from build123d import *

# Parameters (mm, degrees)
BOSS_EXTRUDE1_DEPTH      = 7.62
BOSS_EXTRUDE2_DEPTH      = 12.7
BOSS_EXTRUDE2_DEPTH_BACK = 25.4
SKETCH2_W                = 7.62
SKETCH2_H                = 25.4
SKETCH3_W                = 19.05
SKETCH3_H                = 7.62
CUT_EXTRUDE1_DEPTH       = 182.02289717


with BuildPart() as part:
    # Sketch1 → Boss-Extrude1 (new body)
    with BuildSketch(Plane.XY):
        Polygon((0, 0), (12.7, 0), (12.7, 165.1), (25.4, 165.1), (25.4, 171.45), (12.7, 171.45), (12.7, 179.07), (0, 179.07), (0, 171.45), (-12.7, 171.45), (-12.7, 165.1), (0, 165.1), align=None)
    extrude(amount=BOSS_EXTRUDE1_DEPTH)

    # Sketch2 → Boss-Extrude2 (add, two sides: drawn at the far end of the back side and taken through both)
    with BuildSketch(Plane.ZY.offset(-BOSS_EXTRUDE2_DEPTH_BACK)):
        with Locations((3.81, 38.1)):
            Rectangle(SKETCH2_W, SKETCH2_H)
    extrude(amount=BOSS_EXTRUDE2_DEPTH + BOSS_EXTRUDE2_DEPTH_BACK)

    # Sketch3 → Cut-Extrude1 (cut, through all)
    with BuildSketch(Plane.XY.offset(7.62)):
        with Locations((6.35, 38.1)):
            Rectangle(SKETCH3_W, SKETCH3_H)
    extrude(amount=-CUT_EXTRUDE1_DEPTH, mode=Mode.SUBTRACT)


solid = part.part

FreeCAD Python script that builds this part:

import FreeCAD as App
import Part
import Sketcher
Q = App.Units.Quantity

doc = App.newDocument("Part")
body = doc.addObject("PartDesign::Body", "Body")

# Sketch on XY plane
sketch1 = doc.addObject("Sketcher::SketchObject", "Sketch")
body.addObject(sketch1)
sketch1.AttachmentSupport = (doc.XY_Plane, [""])
sketch1.MapMode = "FlatFace"
sketch1.addGeometry([
    Part.LineSegment(App.Vector(0, 0, 0), App.Vector(13, 0, 0)),  # 0
    Part.LineSegment(App.Vector(13, 0, 0), App.Vector(13, 165, 0)),  # 1
    Part.LineSegment(App.Vector(13, 165, 0), App.Vector(25, 165, 0)),  # 2
    Part.LineSegment(App.Vector(25, 165, 0), App.Vector(25, 171, 0)),  # 3
    Part.LineSegment(App.Vector(25, 171, 0), App.Vector(13, 171, 0)),  # 4
    Part.LineSegment(App.Vector(13, 171, 0), App.Vector(13, 179, 0)),  # 5
    Part.LineSegment(App.Vector(13, 179, 0), App.Vector(0, 179, 0)),  # 6
    Part.LineSegment(App.Vector(0, 179, 0), App.Vector(0, 171, 0)),  # 7
    Part.LineSegment(App.Vector(0, 171, 0), App.Vector(-13, 171, 0)),  # 8
    Part.LineSegment(App.Vector(-13, 171, 0), App.Vector(-13, 165, 0)),  # 9
    Part.LineSegment(App.Vector(-13, 165, 0), App.Vector(0, 165, 0)),  # 10
    Part.LineSegment(App.Vector(0, 165, 0), App.Vector(0, 0, 0)),  # 11
], False)
sketch1.addConstraint([
    Sketcher.Constraint("Coincident", 0, 2, 1, 1),
    Sketcher.Constraint("Coincident", 1, 2, 2, 1),
    Sketcher.Constraint("Coincident", 2, 2, 3, 1),
    Sketcher.Constraint("Coincident", 3, 2, 4, 1),
    Sketcher.Constraint("Coincident", 4, 2, 5, 1),
    Sketcher.Constraint("Coincident", 5, 2, 6, 1),
    Sketcher.Constraint("Coincident", 6, 2, 7, 1),
    Sketcher.Constraint("Coincident", 7, 2, 8, 1),
    Sketcher.Constraint("Coincident", 8, 2, 9, 1),
    Sketcher.Constraint("Coincident", 9, 2, 10, 1),
    Sketcher.Constraint("Coincident", 10, 2, 11, 1),
    Sketcher.Constraint("Coincident", 11, 2, 0, 1),
    Sketcher.Constraint("Horizontal", 0),
    Sketcher.Constraint("Vertical", 1),
    Sketcher.Constraint("Horizontal", 2),
    Sketcher.Constraint("Vertical", 3),
    Sketcher.Constraint("Horizontal", 4),
    Sketcher.Constraint("Vertical", 5),
    Sketcher.Constraint("Horizontal", 6),
    Sketcher.Constraint("Vertical", 7),
    Sketcher.Constraint("Horizontal", 8),
    Sketcher.Constraint("Vertical", 9),
    Sketcher.Constraint("Horizontal", 10),
    Sketcher.Constraint("Vertical", 11),
    Sketcher.Constraint("Coincident", 11, 2, -1, 1),
    Sketcher.Constraint("Symmetric", 4, 2, 8, 2, -2),
    Sketcher.Constraint("Symmetric", 1, 2, 9, 2, -2),
    Sketcher.Constraint("PointOnObject", 6, 2, -2),
    Sketcher.Constraint("Equal", 0, 2),
    Sketcher.Constraint("DistanceX", 0, 1, 0, 2, Q("0.5 in")),
    Sketcher.Constraint("DistanceY", 1, 1, 1, 2, Q("6.5 in")),
    Sketcher.Constraint("DistanceY", 5, 1, 5, 2, Q("0.3 in")),
    Sketcher.Constraint("DistanceY", 3, 1, 3, 2, Q("0.25 in")),
])
pad1 = doc.addObject("PartDesign::Pad", "Pad")
body.addObject(pad1)
pad1.Profile = sketch1
pad1.Length = Q("0.3 in")

# Sketch on YZ plane
sketch2 = doc.addObject("Sketcher::SketchObject", "Sketch001")
body.addObject(sketch2)
sketch2.AttachmentSupport = (doc.YZ_Plane, [""])
sketch2.MapMode = "FlatFace"
sketch2.addGeometry([
    Part.LineSegment(App.Vector(51, 0, 0), App.Vector(25, 0, 0)),
    Part.LineSegment(App.Vector(25, 0, 0), App.Vector(25, 8, 0)),
    Part.LineSegment(App.Vector(25, 8, 0), App.Vector(51, 8, 0)),
    Part.LineSegment(App.Vector(51, 8, 0), App.Vector(51, 0, 0)),
], False)
sketch2.addConstraint([
    Sketcher.Constraint("Coincident", 0, 2, 1, 1),
    Sketcher.Constraint("Coincident", 1, 2, 2, 1),
    Sketcher.Constraint("Coincident", 2, 2, 3, 1),
    Sketcher.Constraint("Coincident", 3, 2, 0, 1),
    Sketcher.Constraint("Horizontal", 0),
    Sketcher.Constraint("Vertical", 1),
    Sketcher.Constraint("Horizontal", 2),
    Sketcher.Constraint("Vertical", 3),
    Sketcher.Constraint("PointOnObject", 0, 2, -1),
    Sketcher.Constraint("DistanceX", 0, 2, 0, 1, Q("1 in")),
    Sketcher.Constraint("DistanceY", 1, 1, 1, 2, Q("0.3 in")),
    Sketcher.Constraint("DistanceX", -1, 1, 0, 2, Q("1 in")),
])
pad2 = doc.addObject("PartDesign::Pad", "Pad001")
body.addObject(pad2)
pad2.Profile = sketch2
pad2.Type = "TwoLengths"
pad2.Length = Q("0.5 in")
pad2.Length2 = Q("1 in")
pad2.Reversed = True

# Sketch on XY plane
sketch3 = doc.addObject("Sketcher::SketchObject", "Sketch002")
body.addObject(sketch3)
sketch3.AttachmentSupport = (doc.XY_Plane, [""])
sketch3.MapMode = "FlatFace"
sketch3.AttachmentOffset = App.Placement(App.Vector(0, 0, 0.3 * 25.4), App.Rotation())
sketch3.addGeometry([
    Part.LineSegment(App.Vector(-3, 42, 0), App.Vector(-3, 34, 0)),
    Part.LineSegment(App.Vector(-3, 34, 0), App.Vector(16, 34, 0)),
    Part.LineSegment(App.Vector(16, 34, 0), App.Vector(16, 42, 0)),
    Part.LineSegment(App.Vector(16, 42, 0), App.Vector(-3, 42, 0)),
], False)
sketch3.addConstraint([
    Sketcher.Constraint("Coincident", 0, 2, 1, 1),
    Sketcher.Constraint("Coincident", 1, 2, 2, 1),
    Sketcher.Constraint("Coincident", 2, 2, 3, 1),
    Sketcher.Constraint("Coincident", 3, 2, 0, 1),
    Sketcher.Constraint("Vertical", 0),
    Sketcher.Constraint("Horizontal", 1),
    Sketcher.Constraint("Vertical", 2),
    Sketcher.Constraint("Horizontal", 3),
    Sketcher.Constraint("DistanceY", 0, 2, 0, 1, Q("0.3 in")),
    Sketcher.Constraint("DistanceX", 1, 1, 1, 2, Q("0.75 in")),
    Sketcher.Constraint("DistanceY", -1, 1, 0, 2, Q("1.35 in")),
    Sketcher.Constraint("DistanceX", 0, 2, -1, 1, Q("0.125 in")),
])
pocket1 = doc.addObject("PartDesign::Pocket", "Pocket")
body.addObject(pocket1)
pocket1.Profile = sketch3
pocket1.Type = "ThroughAll"

doc.recompute()
